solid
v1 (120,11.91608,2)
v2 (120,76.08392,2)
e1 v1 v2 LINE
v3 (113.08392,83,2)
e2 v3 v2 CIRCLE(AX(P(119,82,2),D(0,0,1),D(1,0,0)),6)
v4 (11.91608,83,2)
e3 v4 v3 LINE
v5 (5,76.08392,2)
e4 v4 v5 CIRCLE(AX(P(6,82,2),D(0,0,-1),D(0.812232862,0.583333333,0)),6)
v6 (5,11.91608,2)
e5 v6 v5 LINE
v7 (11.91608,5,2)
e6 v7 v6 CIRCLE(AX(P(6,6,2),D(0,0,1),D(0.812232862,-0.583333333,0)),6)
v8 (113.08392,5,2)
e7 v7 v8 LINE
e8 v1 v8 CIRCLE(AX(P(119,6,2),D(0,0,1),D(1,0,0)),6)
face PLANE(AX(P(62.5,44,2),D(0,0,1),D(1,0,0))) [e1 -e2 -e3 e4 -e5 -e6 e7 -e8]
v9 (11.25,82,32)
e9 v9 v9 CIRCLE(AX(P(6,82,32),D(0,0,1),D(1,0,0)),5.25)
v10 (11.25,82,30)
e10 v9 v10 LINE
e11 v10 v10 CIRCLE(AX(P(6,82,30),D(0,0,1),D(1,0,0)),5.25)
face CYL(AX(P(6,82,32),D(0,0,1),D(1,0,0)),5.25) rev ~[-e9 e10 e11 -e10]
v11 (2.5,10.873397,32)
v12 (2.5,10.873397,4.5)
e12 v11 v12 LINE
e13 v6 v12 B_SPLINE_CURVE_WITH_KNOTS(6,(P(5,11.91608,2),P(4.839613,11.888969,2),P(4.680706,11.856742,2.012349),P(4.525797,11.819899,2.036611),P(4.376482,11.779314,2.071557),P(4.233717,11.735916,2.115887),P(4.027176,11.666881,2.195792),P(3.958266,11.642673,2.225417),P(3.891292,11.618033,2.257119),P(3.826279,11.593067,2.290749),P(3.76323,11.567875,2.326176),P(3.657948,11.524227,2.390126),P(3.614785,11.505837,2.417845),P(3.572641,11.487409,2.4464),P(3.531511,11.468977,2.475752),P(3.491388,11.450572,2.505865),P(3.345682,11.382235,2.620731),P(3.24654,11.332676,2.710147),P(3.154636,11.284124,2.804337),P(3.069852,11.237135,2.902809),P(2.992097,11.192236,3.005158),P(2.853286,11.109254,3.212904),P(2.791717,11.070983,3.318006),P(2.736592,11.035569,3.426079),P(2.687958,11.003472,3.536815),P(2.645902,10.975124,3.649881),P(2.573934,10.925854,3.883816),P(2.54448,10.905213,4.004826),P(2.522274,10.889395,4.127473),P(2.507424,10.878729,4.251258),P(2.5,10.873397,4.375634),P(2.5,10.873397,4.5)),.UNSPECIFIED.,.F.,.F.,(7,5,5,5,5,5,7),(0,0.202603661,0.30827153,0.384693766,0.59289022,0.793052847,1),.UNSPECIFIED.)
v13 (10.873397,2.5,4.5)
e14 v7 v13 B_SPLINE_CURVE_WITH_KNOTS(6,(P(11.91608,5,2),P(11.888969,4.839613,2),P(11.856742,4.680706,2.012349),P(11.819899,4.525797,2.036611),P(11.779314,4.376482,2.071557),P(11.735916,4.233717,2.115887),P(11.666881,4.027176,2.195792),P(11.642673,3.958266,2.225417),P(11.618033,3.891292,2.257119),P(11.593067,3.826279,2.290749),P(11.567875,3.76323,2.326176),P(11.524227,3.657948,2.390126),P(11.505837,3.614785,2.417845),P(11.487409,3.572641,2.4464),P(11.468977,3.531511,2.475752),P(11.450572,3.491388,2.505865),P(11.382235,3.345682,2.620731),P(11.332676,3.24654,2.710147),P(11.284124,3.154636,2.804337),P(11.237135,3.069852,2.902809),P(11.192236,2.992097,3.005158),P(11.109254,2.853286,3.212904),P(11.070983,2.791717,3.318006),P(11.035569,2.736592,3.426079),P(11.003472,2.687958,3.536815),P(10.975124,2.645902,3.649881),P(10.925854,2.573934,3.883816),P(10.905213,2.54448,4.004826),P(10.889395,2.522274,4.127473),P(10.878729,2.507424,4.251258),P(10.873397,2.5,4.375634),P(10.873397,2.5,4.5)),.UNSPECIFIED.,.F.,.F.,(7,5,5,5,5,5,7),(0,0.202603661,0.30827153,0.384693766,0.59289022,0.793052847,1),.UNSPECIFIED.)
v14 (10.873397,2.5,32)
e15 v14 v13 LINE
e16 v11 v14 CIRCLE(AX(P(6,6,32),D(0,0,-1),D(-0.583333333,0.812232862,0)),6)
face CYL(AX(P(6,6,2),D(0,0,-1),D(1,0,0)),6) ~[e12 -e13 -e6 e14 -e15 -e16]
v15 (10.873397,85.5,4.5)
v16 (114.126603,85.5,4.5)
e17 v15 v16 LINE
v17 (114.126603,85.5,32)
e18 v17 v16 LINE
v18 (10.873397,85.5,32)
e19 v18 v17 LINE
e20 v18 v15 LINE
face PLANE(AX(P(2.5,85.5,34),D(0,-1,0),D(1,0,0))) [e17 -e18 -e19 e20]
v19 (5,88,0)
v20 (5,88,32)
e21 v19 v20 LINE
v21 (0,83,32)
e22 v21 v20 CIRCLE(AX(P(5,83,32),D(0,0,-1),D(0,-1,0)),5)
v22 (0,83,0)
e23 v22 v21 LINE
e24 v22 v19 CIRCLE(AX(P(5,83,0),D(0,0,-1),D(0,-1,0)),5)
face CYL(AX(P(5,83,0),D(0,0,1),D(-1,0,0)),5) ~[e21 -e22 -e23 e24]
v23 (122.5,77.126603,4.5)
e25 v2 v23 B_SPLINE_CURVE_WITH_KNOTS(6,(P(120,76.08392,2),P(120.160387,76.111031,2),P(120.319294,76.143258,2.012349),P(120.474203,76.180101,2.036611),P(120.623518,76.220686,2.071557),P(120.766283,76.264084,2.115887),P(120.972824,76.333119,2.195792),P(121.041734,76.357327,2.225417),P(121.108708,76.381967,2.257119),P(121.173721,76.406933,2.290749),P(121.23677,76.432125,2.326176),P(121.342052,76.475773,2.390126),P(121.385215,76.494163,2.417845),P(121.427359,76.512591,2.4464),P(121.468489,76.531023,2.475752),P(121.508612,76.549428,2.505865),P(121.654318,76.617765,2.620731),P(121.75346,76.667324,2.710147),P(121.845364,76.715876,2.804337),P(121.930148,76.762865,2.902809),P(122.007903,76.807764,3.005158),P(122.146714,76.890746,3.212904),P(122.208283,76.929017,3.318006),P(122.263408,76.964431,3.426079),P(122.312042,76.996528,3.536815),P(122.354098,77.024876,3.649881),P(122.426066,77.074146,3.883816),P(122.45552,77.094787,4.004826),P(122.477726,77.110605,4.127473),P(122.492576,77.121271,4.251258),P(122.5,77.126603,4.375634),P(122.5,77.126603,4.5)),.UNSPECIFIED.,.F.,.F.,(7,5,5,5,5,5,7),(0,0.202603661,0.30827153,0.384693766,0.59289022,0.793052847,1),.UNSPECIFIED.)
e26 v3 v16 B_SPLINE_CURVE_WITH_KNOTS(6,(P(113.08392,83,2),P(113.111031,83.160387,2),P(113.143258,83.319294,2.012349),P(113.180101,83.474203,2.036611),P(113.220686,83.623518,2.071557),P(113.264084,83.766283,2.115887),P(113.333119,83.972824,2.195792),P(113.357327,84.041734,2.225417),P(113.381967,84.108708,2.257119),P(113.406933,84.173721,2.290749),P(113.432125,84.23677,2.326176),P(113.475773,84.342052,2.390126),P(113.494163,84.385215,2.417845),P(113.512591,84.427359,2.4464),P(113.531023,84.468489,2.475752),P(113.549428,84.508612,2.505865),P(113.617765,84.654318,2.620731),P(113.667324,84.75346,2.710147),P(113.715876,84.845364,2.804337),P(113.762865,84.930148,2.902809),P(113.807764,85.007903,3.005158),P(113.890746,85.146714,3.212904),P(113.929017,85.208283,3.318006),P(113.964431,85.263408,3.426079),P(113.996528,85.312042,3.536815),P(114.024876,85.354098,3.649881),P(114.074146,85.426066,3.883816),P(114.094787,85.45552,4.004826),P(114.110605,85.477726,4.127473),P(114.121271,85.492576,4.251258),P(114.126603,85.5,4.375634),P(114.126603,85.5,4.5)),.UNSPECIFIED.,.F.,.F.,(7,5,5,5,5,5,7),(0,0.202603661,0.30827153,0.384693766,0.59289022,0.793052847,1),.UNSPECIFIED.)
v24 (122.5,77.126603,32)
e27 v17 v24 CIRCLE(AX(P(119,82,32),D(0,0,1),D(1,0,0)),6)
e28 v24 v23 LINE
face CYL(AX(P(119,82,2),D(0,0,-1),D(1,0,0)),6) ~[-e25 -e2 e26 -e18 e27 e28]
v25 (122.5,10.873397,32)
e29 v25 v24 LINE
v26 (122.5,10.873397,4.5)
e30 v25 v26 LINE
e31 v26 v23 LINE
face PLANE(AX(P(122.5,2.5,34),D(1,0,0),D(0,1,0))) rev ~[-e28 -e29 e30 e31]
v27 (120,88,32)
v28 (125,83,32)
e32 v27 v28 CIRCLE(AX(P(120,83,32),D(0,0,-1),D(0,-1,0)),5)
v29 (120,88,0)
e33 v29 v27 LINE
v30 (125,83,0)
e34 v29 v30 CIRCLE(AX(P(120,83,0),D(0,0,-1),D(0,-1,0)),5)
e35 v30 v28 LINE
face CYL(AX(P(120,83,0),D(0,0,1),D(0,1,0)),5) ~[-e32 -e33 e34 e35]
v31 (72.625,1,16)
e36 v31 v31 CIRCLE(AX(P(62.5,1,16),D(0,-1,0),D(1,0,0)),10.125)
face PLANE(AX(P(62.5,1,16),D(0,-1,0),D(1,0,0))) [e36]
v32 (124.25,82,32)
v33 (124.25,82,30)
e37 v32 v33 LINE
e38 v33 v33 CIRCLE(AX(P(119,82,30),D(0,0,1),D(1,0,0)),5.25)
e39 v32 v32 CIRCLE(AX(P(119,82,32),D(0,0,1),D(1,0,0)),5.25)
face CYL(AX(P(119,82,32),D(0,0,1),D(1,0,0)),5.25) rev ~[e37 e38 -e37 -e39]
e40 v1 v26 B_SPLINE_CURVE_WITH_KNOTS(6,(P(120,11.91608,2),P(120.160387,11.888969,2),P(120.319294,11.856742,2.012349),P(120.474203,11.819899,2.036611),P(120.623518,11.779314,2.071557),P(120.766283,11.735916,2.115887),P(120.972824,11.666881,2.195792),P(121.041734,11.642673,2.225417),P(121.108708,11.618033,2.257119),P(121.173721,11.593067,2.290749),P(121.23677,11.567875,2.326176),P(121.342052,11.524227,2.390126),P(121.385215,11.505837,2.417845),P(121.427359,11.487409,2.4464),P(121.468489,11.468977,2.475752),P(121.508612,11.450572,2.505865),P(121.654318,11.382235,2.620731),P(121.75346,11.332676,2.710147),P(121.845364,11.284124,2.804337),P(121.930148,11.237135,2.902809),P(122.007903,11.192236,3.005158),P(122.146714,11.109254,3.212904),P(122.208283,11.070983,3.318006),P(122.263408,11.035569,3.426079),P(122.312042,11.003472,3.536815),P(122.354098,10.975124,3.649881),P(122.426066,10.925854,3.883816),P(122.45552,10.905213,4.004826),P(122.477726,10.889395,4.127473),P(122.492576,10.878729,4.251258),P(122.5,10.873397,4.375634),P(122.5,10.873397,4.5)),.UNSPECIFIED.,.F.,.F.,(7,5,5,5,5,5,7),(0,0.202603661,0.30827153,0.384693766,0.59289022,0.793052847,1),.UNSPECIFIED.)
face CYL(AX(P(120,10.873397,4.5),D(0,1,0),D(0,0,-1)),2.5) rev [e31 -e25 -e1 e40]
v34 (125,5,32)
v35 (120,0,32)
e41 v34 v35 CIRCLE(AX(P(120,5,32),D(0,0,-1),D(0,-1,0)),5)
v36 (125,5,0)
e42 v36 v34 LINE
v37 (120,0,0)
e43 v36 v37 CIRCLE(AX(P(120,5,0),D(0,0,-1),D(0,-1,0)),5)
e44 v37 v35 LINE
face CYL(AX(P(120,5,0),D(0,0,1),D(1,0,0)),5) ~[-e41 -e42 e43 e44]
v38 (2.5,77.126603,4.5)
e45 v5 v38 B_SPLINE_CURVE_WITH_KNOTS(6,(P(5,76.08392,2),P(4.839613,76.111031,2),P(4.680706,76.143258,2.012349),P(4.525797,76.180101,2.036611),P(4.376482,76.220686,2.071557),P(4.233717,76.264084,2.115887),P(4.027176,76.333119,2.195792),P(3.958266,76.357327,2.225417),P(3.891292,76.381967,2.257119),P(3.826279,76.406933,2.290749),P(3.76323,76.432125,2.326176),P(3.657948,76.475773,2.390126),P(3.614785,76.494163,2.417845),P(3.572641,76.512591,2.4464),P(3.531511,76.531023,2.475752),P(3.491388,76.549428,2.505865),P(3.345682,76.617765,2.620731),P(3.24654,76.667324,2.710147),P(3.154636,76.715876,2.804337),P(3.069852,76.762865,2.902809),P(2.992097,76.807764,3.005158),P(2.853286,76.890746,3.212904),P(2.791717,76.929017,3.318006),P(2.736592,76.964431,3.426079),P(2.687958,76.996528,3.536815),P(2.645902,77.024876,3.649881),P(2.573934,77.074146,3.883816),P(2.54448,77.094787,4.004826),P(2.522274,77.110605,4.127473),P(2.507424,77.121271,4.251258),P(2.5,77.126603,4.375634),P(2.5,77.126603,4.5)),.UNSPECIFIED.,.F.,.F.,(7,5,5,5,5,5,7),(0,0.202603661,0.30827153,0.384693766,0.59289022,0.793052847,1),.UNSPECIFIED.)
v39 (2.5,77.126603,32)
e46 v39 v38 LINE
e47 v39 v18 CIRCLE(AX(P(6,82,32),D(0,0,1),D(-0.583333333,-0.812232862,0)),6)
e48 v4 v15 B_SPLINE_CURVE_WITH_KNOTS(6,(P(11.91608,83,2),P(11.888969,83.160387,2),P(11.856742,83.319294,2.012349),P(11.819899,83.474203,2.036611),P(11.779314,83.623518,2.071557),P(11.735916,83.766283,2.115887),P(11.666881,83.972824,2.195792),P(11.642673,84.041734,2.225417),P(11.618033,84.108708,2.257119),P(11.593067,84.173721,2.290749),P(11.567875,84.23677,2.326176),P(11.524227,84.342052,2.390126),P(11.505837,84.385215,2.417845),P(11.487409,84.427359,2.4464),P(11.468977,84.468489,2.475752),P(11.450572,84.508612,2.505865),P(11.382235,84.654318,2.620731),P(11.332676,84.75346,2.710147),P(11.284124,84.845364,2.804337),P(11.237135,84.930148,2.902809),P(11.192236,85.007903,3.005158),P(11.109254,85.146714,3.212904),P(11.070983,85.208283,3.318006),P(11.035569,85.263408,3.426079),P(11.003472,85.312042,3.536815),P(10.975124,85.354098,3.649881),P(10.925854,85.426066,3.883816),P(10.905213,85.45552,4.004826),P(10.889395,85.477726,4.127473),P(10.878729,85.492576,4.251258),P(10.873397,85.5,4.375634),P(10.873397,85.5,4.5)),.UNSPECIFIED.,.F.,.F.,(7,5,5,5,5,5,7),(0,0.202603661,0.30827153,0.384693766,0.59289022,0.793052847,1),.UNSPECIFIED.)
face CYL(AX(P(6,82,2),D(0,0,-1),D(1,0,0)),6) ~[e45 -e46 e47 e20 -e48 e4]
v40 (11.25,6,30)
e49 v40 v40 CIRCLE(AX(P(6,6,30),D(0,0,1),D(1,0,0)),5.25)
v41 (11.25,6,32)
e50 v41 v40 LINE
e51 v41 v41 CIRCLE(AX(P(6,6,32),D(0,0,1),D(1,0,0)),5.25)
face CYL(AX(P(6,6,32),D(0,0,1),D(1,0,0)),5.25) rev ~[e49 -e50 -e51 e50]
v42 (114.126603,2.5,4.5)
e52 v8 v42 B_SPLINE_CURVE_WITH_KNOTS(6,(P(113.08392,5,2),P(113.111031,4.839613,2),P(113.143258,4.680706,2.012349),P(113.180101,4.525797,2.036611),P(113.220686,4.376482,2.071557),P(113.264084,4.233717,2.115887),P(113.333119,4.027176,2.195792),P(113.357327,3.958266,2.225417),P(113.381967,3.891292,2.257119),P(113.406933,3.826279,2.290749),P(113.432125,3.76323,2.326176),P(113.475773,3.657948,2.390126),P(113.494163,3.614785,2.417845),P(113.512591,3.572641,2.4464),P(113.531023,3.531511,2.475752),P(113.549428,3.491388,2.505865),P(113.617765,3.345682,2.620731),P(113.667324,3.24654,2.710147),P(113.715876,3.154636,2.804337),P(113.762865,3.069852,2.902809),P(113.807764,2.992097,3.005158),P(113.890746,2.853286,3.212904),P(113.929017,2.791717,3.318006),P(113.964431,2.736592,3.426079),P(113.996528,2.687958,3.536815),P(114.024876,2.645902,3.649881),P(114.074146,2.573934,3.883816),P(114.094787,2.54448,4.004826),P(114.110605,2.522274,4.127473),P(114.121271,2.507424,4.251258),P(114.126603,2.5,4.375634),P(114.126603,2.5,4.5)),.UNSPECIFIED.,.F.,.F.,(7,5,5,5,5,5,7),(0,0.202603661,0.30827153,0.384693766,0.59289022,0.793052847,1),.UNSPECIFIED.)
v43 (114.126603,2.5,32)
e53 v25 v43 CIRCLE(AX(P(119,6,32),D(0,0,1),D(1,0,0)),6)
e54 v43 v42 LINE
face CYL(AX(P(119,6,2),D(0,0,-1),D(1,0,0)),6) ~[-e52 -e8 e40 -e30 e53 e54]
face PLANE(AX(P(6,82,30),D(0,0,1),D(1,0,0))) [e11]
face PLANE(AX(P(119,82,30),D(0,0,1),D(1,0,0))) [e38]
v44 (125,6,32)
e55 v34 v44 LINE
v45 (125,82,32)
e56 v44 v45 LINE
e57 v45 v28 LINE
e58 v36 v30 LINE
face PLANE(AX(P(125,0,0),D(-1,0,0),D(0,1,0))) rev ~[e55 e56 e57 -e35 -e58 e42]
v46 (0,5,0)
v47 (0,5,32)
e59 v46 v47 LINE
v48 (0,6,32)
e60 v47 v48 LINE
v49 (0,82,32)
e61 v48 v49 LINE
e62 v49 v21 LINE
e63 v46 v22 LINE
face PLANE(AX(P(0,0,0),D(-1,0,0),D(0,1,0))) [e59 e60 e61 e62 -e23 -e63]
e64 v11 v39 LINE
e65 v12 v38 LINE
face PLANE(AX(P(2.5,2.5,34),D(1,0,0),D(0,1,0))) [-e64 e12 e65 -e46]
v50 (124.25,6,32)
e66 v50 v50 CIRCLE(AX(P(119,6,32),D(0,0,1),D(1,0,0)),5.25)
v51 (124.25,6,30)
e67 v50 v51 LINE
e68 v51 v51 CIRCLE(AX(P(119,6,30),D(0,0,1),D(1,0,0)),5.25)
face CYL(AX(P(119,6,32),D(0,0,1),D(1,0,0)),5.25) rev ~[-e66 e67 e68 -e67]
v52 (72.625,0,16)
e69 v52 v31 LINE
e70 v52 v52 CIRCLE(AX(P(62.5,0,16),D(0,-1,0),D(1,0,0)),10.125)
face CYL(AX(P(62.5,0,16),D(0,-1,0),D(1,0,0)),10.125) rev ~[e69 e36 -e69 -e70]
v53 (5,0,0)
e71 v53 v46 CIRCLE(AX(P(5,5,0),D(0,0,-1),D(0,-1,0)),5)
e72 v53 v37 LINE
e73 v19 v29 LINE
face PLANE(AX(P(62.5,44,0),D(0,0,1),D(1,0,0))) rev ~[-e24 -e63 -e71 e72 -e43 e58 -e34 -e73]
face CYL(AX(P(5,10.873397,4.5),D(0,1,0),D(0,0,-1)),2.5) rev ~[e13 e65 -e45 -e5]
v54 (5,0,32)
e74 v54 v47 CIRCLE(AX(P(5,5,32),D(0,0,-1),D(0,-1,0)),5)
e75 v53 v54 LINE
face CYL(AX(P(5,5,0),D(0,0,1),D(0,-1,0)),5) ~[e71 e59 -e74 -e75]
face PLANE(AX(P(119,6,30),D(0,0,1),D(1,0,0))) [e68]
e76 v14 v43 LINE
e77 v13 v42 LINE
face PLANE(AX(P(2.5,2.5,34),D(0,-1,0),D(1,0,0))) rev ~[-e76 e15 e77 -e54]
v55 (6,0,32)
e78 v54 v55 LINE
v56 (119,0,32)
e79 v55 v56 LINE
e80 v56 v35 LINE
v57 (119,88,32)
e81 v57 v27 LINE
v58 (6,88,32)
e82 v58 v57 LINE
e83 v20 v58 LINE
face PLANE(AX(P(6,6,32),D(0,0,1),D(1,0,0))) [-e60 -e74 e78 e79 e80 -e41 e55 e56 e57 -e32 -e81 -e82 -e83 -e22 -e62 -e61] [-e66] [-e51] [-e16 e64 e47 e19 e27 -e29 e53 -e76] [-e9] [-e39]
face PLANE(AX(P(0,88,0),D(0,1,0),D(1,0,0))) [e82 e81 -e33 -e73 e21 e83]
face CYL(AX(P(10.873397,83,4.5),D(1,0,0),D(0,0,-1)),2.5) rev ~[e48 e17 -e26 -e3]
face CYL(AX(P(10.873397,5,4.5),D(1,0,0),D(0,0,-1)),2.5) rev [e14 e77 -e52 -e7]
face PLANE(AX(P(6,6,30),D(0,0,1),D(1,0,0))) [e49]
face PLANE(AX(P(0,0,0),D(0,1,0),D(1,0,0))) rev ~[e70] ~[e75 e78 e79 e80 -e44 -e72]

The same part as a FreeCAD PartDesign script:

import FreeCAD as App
import Part
import Sketcher

V = App.Vector
Q = App.Units.Quantity


def edges_at(feature, points):
    """Names of the edges that pass closest to the given points."""
    edges = feature.Shape.Edges
    near = lambda p: min(range(len(edges)), key=lambda i: edges[i].distToShape(Part.Vertex(*p))[0])
    return sorted({f"Edge{near(p) + 1}" for p in points})


def add_polygon(sketch, points):
    """Adds a closed chain of lines whose ends are joined by coincident constraints."""
    first, n = sketch.GeometryCount, len(points)
    for a, b in zip(points, points[1:] + points[:1]):
        sketch.addGeometry(Part.LineSegment(App.Vector(*a, 0), App.Vector(*b, 0)), False)
    for i in range(n):
        sketch.addConstraint(Sketcher.Constraint("Coincident", first + i, 2, first + (i + 1) % n, 1))

doc = App.newDocument("Part")
body = doc.addObject("PartDesign::Body", "Body")

sketch1 = body.newObject("Sketcher::SketchObject", "Sketch")
sketch1.AttachmentSupport = (doc.getObject("XY_Plane"), [""])
sketch1.MapMode = "FlatFace"
add_polygon(sketch1, [(0, 88), (0, 0), (125, 0), (125, 88)])
sketch1.addConstraint([
    Sketcher.Constraint("Vertical", 0),
    Sketcher.Constraint("Horizontal", 1),
    Sketcher.Constraint("Vertical", 2),
    Sketcher.Constraint("Horizontal", 3),
    Sketcher.Constraint("Coincident", 0, 2, -1, 1),
    Sketcher.Constraint("DistanceX", 1, 1, 1, 2, Q("125 mm")),
    Sketcher.Constraint("DistanceY", 0, 2, 0, 1, Q("88 mm")),
])
pad1 = body.newObject("PartDesign::Pad", "Pad")
pad1.Profile = sketch1
pad1.Length = 32

sketch2 = body.newObject("Sketcher::SketchObject", "Sketch001")
sketch2.AttachmentSupport = (doc.getObject("XY_Plane"), [""])
sketch2.MapMode = "FlatFace"
sketch2.AttachmentOffset = App.Placement(V(0, 0, 34), App.Rotation())
add_polygon(sketch2, [(2.5, 85.5), (2.5, 2.5), (122.5, 2.5), (122.5, 85.5)])
sketch2.addConstraint([
    Sketcher.Constraint("Vertical", 0),
    Sketcher.Constraint("Horizontal", 1),
    Sketcher.Constraint("Vertical", 2),
    Sketcher.Constraint("Horizontal", 3),
    Sketcher.Constraint("DistanceX", 1, 1, 1, 2, Q("120 mm")),
    Sketcher.Constraint("DistanceY", 0, 2, 0, 1, Q("83 mm")),
    Sketcher.Constraint("DistanceX", -1, 1, 0, 2, Q("2.5 mm")),
    Sketcher.Constraint("DistanceY", -1, 1, 0, 2, Q("2.5 mm")),
])
pocket1 = body.newObject("PartDesign::Pocket", "Pocket")
pocket1.Profile = sketch2
pocket1.Length = 32

sketch3 = body.newObject("Sketcher::SketchObject", "Sketch002")
sketch3.AttachmentSupport = (doc.getObject("XY_Plane"), [""])
sketch3.MapMode = "FlatFace"
sketch3.AttachmentOffset = App.Placement(V(0, 0, 2), App.Rotation())
sketch3.addGeometry([
    Part.Circle(V(6, 6, 0), V(0, 0, 1), 6),
    Part.Circle(V(6, 82, 0), V(0, 0, 1), 6),
    Part.Circle(V(119, 82, 0), V(0, 0, 1), 6),
    Part.Circle(V(119, 6, 0), V(0, 0, 1), 6),
], False)
sketch3.addConstraint([
    Sketcher.Constraint("Equal", 0, 1),
    Sketcher.Constraint("Equal", 1, 2),
    Sketcher.Constraint("Equal", 2, 3),
    Sketcher.Constraint("Horizontal", 1, 3, 2, 3),
    Sketcher.Constraint("Horizontal", 0, 3, 3, 3),
    Sketcher.Constraint("Vertical", 0, 3, 1, 3),
    Sketcher.Constraint("Vertical", 2, 3, 3, 3),
    Sketcher.Constraint("Diameter", 0, Q("12 mm")),
    Sketcher.Constraint("DistanceX", -1, 1, 0, 3, Q("6 mm")),
    Sketcher.Constraint("DistanceY", -1, 1, 0, 3, Q("6 mm")),
    Sketcher.Constraint("DistanceY", -1, 1, 1, 3, Q("82 mm")),
    Sketcher.Constraint("DistanceX", -1, 1, 2, 3, Q("119 mm")),
])
pad2 = body.newObject("PartDesign::Pad", "Pad001")
pad2.Profile = sketch3
pad2.Length = 30

sketch4 = body.newObject("Sketcher::SketchObject", "Sketch003")
sketch4.AttachmentSupport = (doc.getObject("XY_Plane"), [""])
sketch4.MapMode = "FlatFace"
sketch4.AttachmentOffset = App.Placement(V(0, 0, 32), App.Rotation())
sketch4.addGeometry([
    Part.Circle(V(6, 6, 0), V(0, 0, 1), 5.25),
    Part.Circle(V(6, 82, 0), V(0, 0, 1), 5.25),
    Part.Circle(V(119, 82, 0), V(0, 0, 1), 5.25),
    Part.Circle(V(119, 6, 0), V(0, 0, 1), 5.25),
], False)
sketch4.addConstraint([
    Sketcher.Constraint("Equal", 0, 1),
    Sketcher.Constraint("Equal", 1, 2),
    Sketcher.Constraint("Equal", 2, 3),
    Sketcher.Constraint("Horizontal", 1, 3, 2, 3),
    Sketcher.Constraint("Horizontal", 0, 3, 3, 3),
    Sketcher.Constraint("Vertical", 0, 3, 1, 3),
    Sketcher.Constraint("Vertical", 2, 3, 3, 3),
    Sketcher.Constraint("Diameter", 0, Q("10.5 mm")),
    Sketcher.Constraint("DistanceX", -1, 1, 0, 3, Q("6 mm")),
    Sketcher.Constraint("DistanceY", -1, 1, 0, 3, Q("6 mm")),
    Sketcher.Constraint("DistanceY", -1, 1, 1, 3, Q("82 mm")),
    Sketcher.Constraint("DistanceX", -1, 1, 2, 3, Q("119 mm")),
])
pocket2 = body.newObject("PartDesign::Pocket", "Pocket001")
pocket2.Profile = sketch4
pocket2.Length = 2
doc.recompute()

fillet = body.newObject("PartDesign::Fillet", "Fillet")
fillet.Base = (pocket2, edges_at(pocket2, [(62.5, 2.5, 2)]))
fillet.Radius = 2.5
doc.recompute()

fillet2 = body.newObject("PartDesign::Fillet", "Fillet001")
fillet2.Base = (fillet, edges_at(fillet, [(122.5, 44, 2)]))
fillet2.Radius = 2.5
doc.recompute()

fillet3 = body.newObject("PartDesign::Fillet", "Fillet002")
fillet3.Base = (fillet2, edges_at(fillet2, [(62.5, 85.5, 2)]))
fillet3.Radius = 2.5
doc.recompute()

fillet4 = body.newObject("PartDesign::Fillet", "Fillet003")
fillet4.Base = (fillet3, edges_at(fillet3, [(2.5, 44, 2)]))
fillet4.Radius = 2.5
doc.recompute()

fillet5 = body.newObject("PartDesign::Fillet", "Fillet004")
fillet5.Base = (fillet4, edges_at(fillet4, [(125, 88, 16)]))
fillet5.Radius = 5
doc.recompute()

fillet6 = body.newObject("PartDesign::Fillet", "Fillet005")
fillet6.Base = (fillet5, edges_at(fillet5, [(125, 0, 16)]))
fillet6.Radius = 5
doc.recompute()

fillet7 = body.newObject("PartDesign::Fillet", "Fillet006")
fillet7.Base = (fillet6, edges_at(fillet6, [(0, 0, 16)]))
fillet7.Radius = 5
doc.recompute()

fillet8 = body.newObject("PartDesign::Fillet", "Fillet007")
fillet8.Base = (fillet7, edges_at(fillet7, [(0, 88, 16)]))
fillet8.Radius = 5

sketch5 = body.newObject("Sketcher::SketchObject", "Sketch004")
sketch5.AttachmentSupport = (doc.getObject("XZ_Plane"), [""])
sketch5.MapMode = "FlatFace"
sketch5.addGeometry(Part.Circle(V(62.5, 16, 0), V(0, 0, 1), 10.125), False)
sketch5.addConstraint([
    Sketcher.Constraint("Diameter", 0, Q("20.25 mm")),
    Sketcher.Constraint("DistanceY", -1, 1, 0, 3, Q("16 mm")),
    Sketcher.Constraint("DistanceX", -1, 1, 0, 3, Q("62.5 mm")),
])
pocket3 = body.newObject("PartDesign::Pocket", "Pocket002")
pocket3.Profile = sketch5
pocket3.Length = 1

doc.recompute()
